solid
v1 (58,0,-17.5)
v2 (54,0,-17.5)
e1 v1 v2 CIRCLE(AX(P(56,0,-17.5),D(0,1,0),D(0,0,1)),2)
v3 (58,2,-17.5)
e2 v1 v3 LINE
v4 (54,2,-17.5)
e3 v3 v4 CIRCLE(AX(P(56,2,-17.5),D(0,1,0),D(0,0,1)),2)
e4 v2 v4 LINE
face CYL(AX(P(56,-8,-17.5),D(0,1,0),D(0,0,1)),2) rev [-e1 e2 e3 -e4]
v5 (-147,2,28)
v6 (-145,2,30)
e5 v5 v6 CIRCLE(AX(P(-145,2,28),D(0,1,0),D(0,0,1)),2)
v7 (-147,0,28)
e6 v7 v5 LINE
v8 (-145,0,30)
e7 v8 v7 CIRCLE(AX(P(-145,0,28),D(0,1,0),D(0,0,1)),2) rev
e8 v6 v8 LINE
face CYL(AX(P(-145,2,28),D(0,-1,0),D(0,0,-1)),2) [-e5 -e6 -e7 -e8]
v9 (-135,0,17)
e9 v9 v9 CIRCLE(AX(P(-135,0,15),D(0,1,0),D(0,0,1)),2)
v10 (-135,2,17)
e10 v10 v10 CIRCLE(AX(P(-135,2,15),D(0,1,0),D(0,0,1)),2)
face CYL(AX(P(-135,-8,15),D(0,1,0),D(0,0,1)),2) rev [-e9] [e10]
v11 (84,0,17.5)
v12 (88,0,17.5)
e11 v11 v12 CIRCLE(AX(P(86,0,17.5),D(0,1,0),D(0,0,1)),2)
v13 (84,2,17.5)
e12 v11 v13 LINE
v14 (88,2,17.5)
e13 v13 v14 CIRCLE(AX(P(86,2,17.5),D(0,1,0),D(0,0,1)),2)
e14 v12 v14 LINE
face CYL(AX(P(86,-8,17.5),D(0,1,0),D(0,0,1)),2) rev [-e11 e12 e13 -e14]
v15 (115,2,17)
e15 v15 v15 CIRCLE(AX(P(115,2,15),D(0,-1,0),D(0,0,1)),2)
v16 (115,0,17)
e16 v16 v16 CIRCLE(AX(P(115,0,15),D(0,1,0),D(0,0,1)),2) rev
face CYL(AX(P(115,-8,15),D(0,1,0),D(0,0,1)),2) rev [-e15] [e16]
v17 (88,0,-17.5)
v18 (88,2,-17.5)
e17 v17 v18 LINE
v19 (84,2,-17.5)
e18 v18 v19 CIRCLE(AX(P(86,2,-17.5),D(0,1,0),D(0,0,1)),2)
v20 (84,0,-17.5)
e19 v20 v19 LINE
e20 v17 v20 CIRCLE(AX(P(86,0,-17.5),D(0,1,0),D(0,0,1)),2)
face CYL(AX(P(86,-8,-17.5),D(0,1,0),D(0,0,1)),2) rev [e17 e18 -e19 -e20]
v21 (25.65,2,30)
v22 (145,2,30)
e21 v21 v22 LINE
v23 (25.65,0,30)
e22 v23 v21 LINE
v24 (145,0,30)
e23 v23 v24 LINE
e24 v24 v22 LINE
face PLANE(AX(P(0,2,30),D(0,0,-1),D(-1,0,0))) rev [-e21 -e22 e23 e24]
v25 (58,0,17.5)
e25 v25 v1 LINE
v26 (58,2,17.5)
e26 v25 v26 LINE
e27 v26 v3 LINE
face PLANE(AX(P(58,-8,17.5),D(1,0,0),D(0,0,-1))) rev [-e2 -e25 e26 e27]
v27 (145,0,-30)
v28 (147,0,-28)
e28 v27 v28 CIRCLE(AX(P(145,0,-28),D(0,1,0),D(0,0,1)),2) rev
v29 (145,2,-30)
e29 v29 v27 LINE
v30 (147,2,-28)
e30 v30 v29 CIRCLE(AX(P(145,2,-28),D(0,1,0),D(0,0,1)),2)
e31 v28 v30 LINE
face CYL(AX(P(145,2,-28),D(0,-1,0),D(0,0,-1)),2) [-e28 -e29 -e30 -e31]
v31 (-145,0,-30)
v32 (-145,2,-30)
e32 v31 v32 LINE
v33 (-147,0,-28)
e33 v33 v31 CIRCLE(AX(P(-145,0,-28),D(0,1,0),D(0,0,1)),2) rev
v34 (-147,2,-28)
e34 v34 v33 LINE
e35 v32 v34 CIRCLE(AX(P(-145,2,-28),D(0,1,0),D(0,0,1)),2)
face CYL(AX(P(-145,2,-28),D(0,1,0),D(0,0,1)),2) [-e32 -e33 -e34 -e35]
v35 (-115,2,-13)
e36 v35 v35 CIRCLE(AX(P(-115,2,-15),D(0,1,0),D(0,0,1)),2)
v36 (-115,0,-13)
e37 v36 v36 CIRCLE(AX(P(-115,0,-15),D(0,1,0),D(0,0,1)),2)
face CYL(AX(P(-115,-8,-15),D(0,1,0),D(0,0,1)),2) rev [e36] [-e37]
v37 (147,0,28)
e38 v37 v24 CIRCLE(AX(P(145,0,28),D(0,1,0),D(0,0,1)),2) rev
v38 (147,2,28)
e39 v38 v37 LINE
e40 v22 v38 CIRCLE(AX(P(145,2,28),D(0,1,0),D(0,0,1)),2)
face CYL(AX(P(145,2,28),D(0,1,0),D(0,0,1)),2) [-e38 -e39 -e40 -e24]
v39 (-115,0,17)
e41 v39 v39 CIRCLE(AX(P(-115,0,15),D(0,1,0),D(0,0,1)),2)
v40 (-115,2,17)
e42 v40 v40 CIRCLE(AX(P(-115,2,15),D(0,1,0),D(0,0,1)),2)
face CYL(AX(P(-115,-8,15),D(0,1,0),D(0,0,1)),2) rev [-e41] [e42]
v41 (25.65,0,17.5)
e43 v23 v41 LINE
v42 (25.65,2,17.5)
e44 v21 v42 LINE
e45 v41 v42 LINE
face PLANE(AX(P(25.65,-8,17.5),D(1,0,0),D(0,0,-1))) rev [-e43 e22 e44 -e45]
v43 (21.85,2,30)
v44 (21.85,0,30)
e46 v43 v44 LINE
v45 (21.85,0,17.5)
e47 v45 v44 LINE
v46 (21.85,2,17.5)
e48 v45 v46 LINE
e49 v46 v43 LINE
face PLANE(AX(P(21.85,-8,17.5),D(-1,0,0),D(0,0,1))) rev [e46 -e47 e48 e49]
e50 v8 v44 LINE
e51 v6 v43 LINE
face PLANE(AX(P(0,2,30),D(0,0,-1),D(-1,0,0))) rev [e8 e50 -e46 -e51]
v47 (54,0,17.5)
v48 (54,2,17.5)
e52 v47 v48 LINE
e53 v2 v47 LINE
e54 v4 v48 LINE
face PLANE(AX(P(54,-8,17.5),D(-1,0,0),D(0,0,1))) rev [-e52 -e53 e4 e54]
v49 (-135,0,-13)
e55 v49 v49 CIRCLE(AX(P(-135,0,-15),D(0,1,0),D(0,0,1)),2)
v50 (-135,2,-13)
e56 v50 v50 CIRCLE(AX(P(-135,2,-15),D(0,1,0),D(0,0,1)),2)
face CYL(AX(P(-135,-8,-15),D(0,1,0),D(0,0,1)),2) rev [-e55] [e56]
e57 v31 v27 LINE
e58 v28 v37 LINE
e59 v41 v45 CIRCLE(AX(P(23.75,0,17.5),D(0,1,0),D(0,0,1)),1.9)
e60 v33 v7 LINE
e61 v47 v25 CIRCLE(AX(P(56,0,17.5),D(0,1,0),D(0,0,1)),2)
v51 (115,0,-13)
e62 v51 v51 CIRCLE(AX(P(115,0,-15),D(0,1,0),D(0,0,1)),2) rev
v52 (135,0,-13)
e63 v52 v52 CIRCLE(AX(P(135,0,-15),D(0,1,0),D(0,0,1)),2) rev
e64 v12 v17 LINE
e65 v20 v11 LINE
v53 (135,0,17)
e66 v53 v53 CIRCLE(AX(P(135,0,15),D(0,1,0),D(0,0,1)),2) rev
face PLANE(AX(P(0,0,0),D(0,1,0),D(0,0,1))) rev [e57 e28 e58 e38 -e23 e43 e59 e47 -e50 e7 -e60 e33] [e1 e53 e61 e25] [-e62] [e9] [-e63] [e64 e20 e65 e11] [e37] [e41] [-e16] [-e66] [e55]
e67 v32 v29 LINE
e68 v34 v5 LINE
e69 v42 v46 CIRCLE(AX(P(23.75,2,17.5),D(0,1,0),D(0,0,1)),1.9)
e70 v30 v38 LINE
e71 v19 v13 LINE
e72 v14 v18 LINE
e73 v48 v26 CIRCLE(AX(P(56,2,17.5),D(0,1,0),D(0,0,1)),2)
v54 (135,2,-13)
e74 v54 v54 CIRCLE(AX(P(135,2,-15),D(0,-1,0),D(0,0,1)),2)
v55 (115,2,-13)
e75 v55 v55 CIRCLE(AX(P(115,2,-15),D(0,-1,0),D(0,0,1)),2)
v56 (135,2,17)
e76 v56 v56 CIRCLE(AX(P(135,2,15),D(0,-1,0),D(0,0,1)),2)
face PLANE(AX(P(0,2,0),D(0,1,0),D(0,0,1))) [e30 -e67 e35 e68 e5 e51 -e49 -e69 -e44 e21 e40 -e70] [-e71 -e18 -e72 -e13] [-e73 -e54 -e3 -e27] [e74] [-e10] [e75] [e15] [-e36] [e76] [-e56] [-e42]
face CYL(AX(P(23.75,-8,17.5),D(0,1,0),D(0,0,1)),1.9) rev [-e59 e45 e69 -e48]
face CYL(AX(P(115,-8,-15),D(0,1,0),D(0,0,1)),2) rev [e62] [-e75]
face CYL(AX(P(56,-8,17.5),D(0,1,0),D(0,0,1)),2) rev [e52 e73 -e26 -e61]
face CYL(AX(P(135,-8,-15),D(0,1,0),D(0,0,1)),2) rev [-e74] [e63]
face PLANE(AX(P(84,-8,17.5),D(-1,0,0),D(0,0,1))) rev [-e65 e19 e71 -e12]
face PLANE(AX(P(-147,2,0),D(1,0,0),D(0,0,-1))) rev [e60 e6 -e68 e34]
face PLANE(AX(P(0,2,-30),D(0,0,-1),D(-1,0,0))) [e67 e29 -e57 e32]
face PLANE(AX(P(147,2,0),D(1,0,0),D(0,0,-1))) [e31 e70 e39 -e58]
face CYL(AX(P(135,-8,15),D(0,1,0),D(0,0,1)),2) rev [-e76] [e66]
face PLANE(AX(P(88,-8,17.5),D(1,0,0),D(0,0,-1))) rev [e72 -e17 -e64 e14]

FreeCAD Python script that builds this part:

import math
import FreeCAD as App
import Part
import Sketcher


def edges_at(feature, points):
    """Names of the edges that pass closest to the given points."""
    edges = feature.Shape.Edges
    near = lambda p: min(range(len(edges)), key=lambda i: edges[i].distToShape(Part.Vertex(*p))[0])
    return sorted({f"Edge{near(p) + 1}" for p in points})

doc = App.newDocument("Part")
params = doc.addObject("Spreadsheet::Sheet", "Params")
for row, (alias, value) in enumerate([
    ("sketch1_width", "47 mm"),
    ("sketch1_width2", "140 mm"),
    ("sketch1_height", "60 mm"),
    ("sketch1_length", "50 mm"),
    ("pad1_length", "2 mm"),
    ("sketch2_diameter", "4 mm"),
    ("pocket1_length", "10 mm"),
    ("sketch3_radius", "2 mm"),
    ("sketch3_radius2", "1.9 mm"),
    ("sketch3_height", "35 mm"),
    ("sketch3_height2", "30 mm"),
    ("pocket2_length", "10 mm"),
    ("fillet_radius", "2 mm"),
    ("pocket3_length", "10 mm"),
], start=1):
    params.set(f"A{row}", alias)
    params.set(f"B{row}", "=" + value)
    params.setAlias(f"B{row}", alias)

body = doc.addObject("PartDesign::Body", "Body")

# Sketch on XZ plane
sketch1 = doc.addObject("Sketcher::SketchObject", "Sketch")
body.addObject(sketch1)
sketch1.AttachmentSupport = (doc.XZ_Plane, [""])
sketch1.MapMode = "FlatFace"
sketch1.addGeometry([
    Part.LineSegment(App.Vector(-147, -30, 0), App.Vector(-147, 30, 0)),  # 0
    Part.LineSegment(App.Vector(-147, 30, 0), App.Vector(-100, 30, 0)),  # 1
    Part.LineSegment(App.Vector(-100, 30, 0), App.Vector(-70, 70, 0)),  # 2
    Part.LineSegment(App.Vector(-70, 70, 0), App.Vector(70, 70, 0)),  # 3
    Part.LineSegment(App.Vector(70, 70, 0), App.Vector(100, 30, 0)),  # 4
    Part.LineSegment(App.Vector(100, 30, 0), App.Vector(147, 30, 0)),  # 5
    Part.LineSegment(App.Vector(147, 30, 0), App.Vector(147, -30, 0)),  # 6
    Part.LineSegment(App.Vector(147, -30, 0), App.Vector(100, -30, 0)),  # 7
    Part.LineSegment(App.Vector(100, -30, 0), App.Vector(70, -70, 0)),  # 8
    Part.LineSegment(App.Vector(70, -70, 0), App.Vector(-70, -70, 0)),  # 9
    Part.LineSegment(App.Vector(-70, -70, 0), App.Vector(-100, -30, 0)),  # 10
    Part.LineSegment(App.Vector(-100, -30, 0), App.Vector(-147, -30, 0)),  # 11
], False)
sketch1.addConstraint([
    Sketcher.Constraint("Coincident", 0, 2, 1, 1),
    Sketcher.Constraint("Coincident", 1, 2, 2, 1),
    Sketcher.Constraint("Coincident", 2, 2, 3, 1),
    Sketcher.Constraint("Coincident", 3, 2, 4, 1),
    Sketcher.Constraint("Coincident", 4, 2, 5, 1),
    Sketcher.Constraint("Coincident", 5, 2, 6, 1),
    Sketcher.Constraint("Coincident", 6, 2, 7, 1),
    Sketcher.Constraint("Coincident", 7, 2, 8, 1),
    Sketcher.Constraint("Coincident", 8, 2, 9, 1),
    Sketcher.Constraint("Coincident", 9, 2, 10, 1),
    Sketcher.Constraint("Coincident", 10, 2, 11, 1),
    Sketcher.Constraint("Coincident", 11, 2, 0, 1),
    Sketcher.Constraint("Vertical", 0),
    Sketcher.Constraint("Horizontal", 1),
    Sketcher.Constraint("Horizontal", 3),
    Sketcher.Constraint("Horizontal", 5),
    Sketcher.Constraint("Vertical", 6),
    Sketcher.Constraint("Horizontal", 7),
    Sketcher.Constraint("Horizontal", 9),
    Sketcher.Constraint("Horizontal", 11),
    Sketcher.Constraint("Symmetric", 0, 2, 6, 2, -1, 1),
    Sketcher.Constraint("Symmetric", 2, 2, 8, 2, -1, 1),
    Sketcher.Constraint("Symmetric", 4, 2, 10, 2, -1, 1),
    Sketcher.Constraint("Symmetric", 1, 2, 4, 2, -2),
    Sketcher.Constraint("Parallel", 2, 8),
    Sketcher.Constraint("Parallel", 4, 10),
    Sketcher.Constraint("Vertical", 3, 2, 8, 2),
    Sketcher.Constraint("DistanceX", 1, 1, 1, 2, 47.0),
    Sketcher.Constraint("DistanceX", 3, 1, 3, 2, 140.0),
    Sketcher.Constraint("DistanceY", 0, 1, 0, 2, 60.0),
    Sketcher.Constraint("Distance", 2, 50.0),
    Sketcher.Constraint("DistanceX", 0, 2, -1, 1, 147.0),
])
sketch1.setExpression("Constraints[27]", "Params.sketch1_width")
sketch1.setExpression("Constraints[28]", "Params.sketch1_width2")
sketch1.setExpression("Constraints[29]", "Params.sketch1_height")
sketch1.setExpression("Constraints[30]", "Params.sketch1_length")
pad1 = doc.addObject("PartDesign::Pad", "Pad")
body.addObject(pad1)
pad1.Profile = sketch1
pad1.setExpression("Length", "Params.pad1_length")
pad1.Reversed = True

# Sketch on XZ plane
sketch2 = doc.addObject("Sketcher::SketchObject", "Sketch001")
body.addObject(sketch2)
sketch2.AttachmentSupport = (doc.XZ_Plane, [""])
sketch2.MapMode = "FlatFace"
sketch2.AttachmentOffset = App.Placement(App.Vector(0, 0, -2), App.Rotation())
sketch2.addGeometry([
    Part.Circle(App.Vector(-135, -15, 0), App.Vector(0, 0, 1), 2),
    Part.Circle(App.Vector(-115, -15, 0), App.Vector(0, 0, 1), 2),
    Part.Circle(App.Vector(-135, 15, 0), App.Vector(0, 0, 1), 2),
    Part.Circle(App.Vector(-115, 15, 0), App.Vector(0, 0, 1), 2),
], False)
sketch2.addConstraint([
    Sketcher.Constraint("Equal", 0, 1),
    Sketcher.Constraint("Equal", 1, 2),
    Sketcher.Constraint("Equal", 2, 3),
    Sketcher.Constraint("Symmetric", 0, 3, 2, 3, -1),
    Sketcher.Constraint("Symmetric", 1, 3, 3, 3, -1),
    Sketcher.Constraint("Horizontal", 0, 3, 1, 3),
    Sketcher.Constraint("Diameter", 0, 4.0),
    Sketcher.Constraint("DistanceX", 0, 3, -1, 1, 135.0),
    Sketcher.Constraint("DistanceY", 0, 3, -1, 1, 15.0),
    Sketcher.Constraint("DistanceX", 1, 3, -1, 1, 115.0),
])
sketch2.setExpression("Constraints[6]", "Params.sketch2_diameter")
pocket1 = doc.addObject("PartDesign::Pocket", "Pocket")
body.addObject(pocket1)
pocket1.Profile = sketch2
pocket1.setExpression("Length", "Params.pocket1_length")
pocket1.Reversed = True
doc.recompute()

mirrored = doc.addObject("PartDesign::Mirrored", "Mirrored")
body.addObject(mirrored)
mirrored.Originals = [pocket1]
mirrored.MirrorPlane = (doc.YZ_Plane, [""])
body.Tip = mirrored

# Sketch on XZ plane
sketch3 = doc.addObject("Sketcher::SketchObject", "Sketch002")
body.addObject(sketch3)
sketch3.AttachmentSupport = (doc.XZ_Plane, [""])
sketch3.MapMode = "FlatFace"
sketch3.AttachmentOffset = App.Placement(App.Vector(0, 0, -2), App.Rotation())
sketch3.addGeometry([
    Part.LineSegment(App.Vector(58, 17.5, 0), App.Vector(58, -17.5, 0)),  # 0
    Part.ArcOfCircle(Part.Circle(App.Vector(56, -17.5, 0), App.Vector(0, 0, 1), 2), math.radians(180), math.radians(360)),  # 1
    Part.LineSegment(App.Vector(54, -17.5, 0), App.Vector(54, 17.5, 0)),  # 2
    Part.ArcOfCircle(Part.Circle(App.Vector(56, 17.5, 0), App.Vector(0, 0, 1), 2), math.radians(0), math.radians(180)),  # 3
    Part.LineSegment(App.Vector(84, -17.5, 0), App.Vector(84, 17.5, 0)),  # 4
    Part.ArcOfCircle(Part.Circle(App.Vector(86, 17.5, 0), App.Vector(0, 0, 1), 2), math.radians(0), math.radians(180)),  # 5
    Part.LineSegment(App.Vector(88, 17.5, 0), App.Vector(88, -17.5, 0)),  # 6
    Part.ArcOfCircle(Part.Circle(App.Vector(86, -17.5, 0), App.Vector(0, 0, 1), 2), math.radians(180), math.radians(360)),  # 7
    Part.LineSegment(App.Vector(21.85, 17.5, 0), App.Vector(21.85, 47.5, 0)),  # 8
    Part.ArcOfCircle(Part.Circle(App.Vector(23.75, 47.5, 0), App.Vector(0, 0, 1), 1.9), math.radians(0), math.radians(180)),  # 9
    Part.LineSegment(App.Vector(25.65, 47.5, 0), App.Vector(25.65, 17.5, 0)),  # 10
    Part.ArcOfCircle(Part.Circle(App.Vector(23.75, 17.5, 0), App.Vector(0, 0, 1), 1.9), math.radians(180), math.radians(360)),  # 11
], False)
sketch3.addConstraint([
    Sketcher.Constraint("Tangent", 0, 2, 1, 2),
    Sketcher.Constraint("Tangent", 1, 1, 2, 1),
    Sketcher.Constraint("Tangent", 2, 2, 3, 2),
    Sketcher.Constraint("Tangent", 3, 1, 0, 1),
    Sketcher.Constraint("Tangent", 4, 2, 5, 2),
    Sketcher.Constraint("Tangent", 5, 1, 6, 1),
    Sketcher.Constraint("Tangent", 6, 2, 7, 2),
    Sketcher.Constraint("Tangent", 7, 1, 4, 1),
    Sketcher.Constraint("Tangent", 8, 2, 9, 2),
    Sketcher.Constraint("Tangent", 9, 1, 10, 1),
    Sketcher.Constraint("Tangent", 10, 2, 11, 2),
    Sketcher.Constraint("Tangent", 11, 1, 8, 1),
    Sketcher.Constraint("Vertical", 0),
    Sketcher.Constraint("Vertical", 2),
    Sketcher.Constraint("Vertical", 4),
    Sketcher.Constraint("Vertical", 6),
    Sketcher.Constraint("Vertical", 8),
    Sketcher.Constraint("Vertical", 10),
    Sketcher.Constraint("Equal", 3, 5),
    Sketcher.Constraint("Horizontal", 3, 3, 5, 3),
    Sketcher.Constraint("Horizontal", 1, 3, 7, 3),
    Sketcher.Constraint("Horizontal", 5, 3, 11, 3),
    Sketcher.Constraint("Radius", 1, 2.0),
    Sketcher.Constraint("Radius", 9, 1.9),
    Sketcher.Constraint("DistanceY", 0, 2, 0, 1, 35.0),
    Sketcher.Constraint("DistanceY", 8, 1, 8, 2, 30.0),
    Sketcher.Constraint("DistanceX", -1, 1, 1, 3, 56.0),
    Sketcher.Constraint("DistanceX", -1, 1, 5, 3, 86.0),
    Sketcher.Constraint("DistanceY", 1, 3, -1, 1, 17.5),
    Sketcher.Constraint("DistanceX", -1, 1, 9, 3, 23.75),
])
sketch3.setExpression("Constraints[22]", "Params.sketch3_radius")
sketch3.setExpression("Constraints[23]", "Params.sketch3_radius2")
sketch3.setExpression("Constraints[24]", "Params.sketch3_height")
sketch3.setExpression("Constraints[25]", "Params.sketch3_height2")
pocket2 = doc.addObject("PartDesign::Pocket", "Pocket001")
body.addObject(pocket2)
pocket2.Profile = sketch3
pocket2.setExpression("Length", "Params.pocket2_length")
pocket2.Reversed = True
doc.recompute()

fillet = doc.addObject("PartDesign::Fillet", "Fillet")
body.addObject(fillet)
fillet.Base = (pocket2, edges_at(pocket2, [
    (-147, 1, 30),
    (-147, 1, -30),
    (-100, 1, -30),
    (-70, 1, -70),
    (70, 1, -70),
    (100, 1, -30),
    (147, 1, -30),
    (147, 1, 30),
    (100, 1, 30),
    (70, 1, 70),
    (-70, 1, 70),
    (-100, 1, 30),
]))
fillet.setExpression("Radius", "Params.fillet_radius")

# Sketch on XZ plane
sketch4 = doc.addObject("Sketcher::SketchObject", "Sketch003")
body.addObject(sketch4)
sketch4.AttachmentSupport = (doc.XZ_Plane, [""])
sketch4.MapMode = "FlatFace"
sketch4.AttachmentOffset = App.Placement(App.Vector(0, 0, -2), App.Rotation())
sketch4.addGeometry([
    Part.LineSegment(App.Vector(-111.69615, -72.811459, 0), App.Vector(-111.69615, -30, 0)),  # 0
    Part.LineSegment(App.Vector(-111.69615, -30, 0), App.Vector(107.220114, -30, 0)),  # 1
    Part.LineSegment(App.Vector(107.220114, -30, 0), App.Vector(107.220114, -72.811459, 0)),  # 2
    Part.LineSegment(App.Vector(107.220114, -72.811459, 0), App.Vector(-111.69615, -72.811459, 0)),  # 3
    Part.LineSegment(App.Vector(-111.69615, 30, 0), App.Vector(-111.69615, 71.263514, 0)),  # 4
    Part.LineSegment(App.Vector(-111.69615, 71.263514, 0), App.Vector(107.220114, 71.263514, 0)),  # 5
    Part.LineSegment(App.Vector(107.220114, 71.263514, 0), App.Vector(107.220114, 30, 0)),  # 6
    Part.LineSegment(App.Vector(107.220114, 30, 0), App.Vector(-111.69615, 30, 0)),  # 7
], False)
sketch4.addConstraint([
    Sketcher.Constraint("Coincident", 0, 2, 1, 1),
    Sketcher.Constraint("Coincident", 1, 2, 2, 1),
    Sketcher.Constraint("Coincident", 2, 2, 3, 1),
    Sketcher.Constraint("Coincident", 3, 2, 0, 1),
    Sketcher.Constraint("Coincident", 4, 2, 5, 1),
    Sketcher.Constraint("Coincident", 5, 2, 6, 1),
    Sketcher.Constraint("Coincident", 6, 2, 7, 1),
    Sketcher.Constraint("Coincident", 7, 2, 4, 1),
    Sketcher.Constraint("Vertical", 0),
    Sketcher.Constraint("Horizontal", 1),
    Sketcher.Constraint("Vertical", 2),
    Sketcher.Constraint("Horizontal", 3),
    Sketcher.Constraint("Vertical", 4),
    Sketcher.Constraint("Horizontal", 5),
    Sketcher.Constraint("Vertical", 6),
    Sketcher.Constraint("Horizontal", 7),
    Sketcher.Constraint("Symmetric", 1, 2, 6, 2, -1),
    Sketcher.Constraint("Vertical", 3, 2, 4, 2),
    Sketcher.Constraint("DistanceY", 0, 2, -1, 1, 30.0),
    Sketcher.Constraint("DistanceY", 0, 1, 0, 2, 42.811459),
    Sketcher.Constraint("DistanceX", 1, 1, 1, 2, 218.916264),
    Sketcher.Constraint("DistanceY", 4, 1, 4, 2, 41.263514),
    Sketcher.Constraint("DistanceX", 0, 2, -1, 1, 111.69615),
])
pocket3 = doc.addObject("PartDesign::Pocket", "Pocket002")
body.addObject(pocket3)
pocket3.Profile = sketch4
pocket3.setExpression("Length", "Params.pocket3_length")
pocket3.Reversed = True

doc.recompute()
